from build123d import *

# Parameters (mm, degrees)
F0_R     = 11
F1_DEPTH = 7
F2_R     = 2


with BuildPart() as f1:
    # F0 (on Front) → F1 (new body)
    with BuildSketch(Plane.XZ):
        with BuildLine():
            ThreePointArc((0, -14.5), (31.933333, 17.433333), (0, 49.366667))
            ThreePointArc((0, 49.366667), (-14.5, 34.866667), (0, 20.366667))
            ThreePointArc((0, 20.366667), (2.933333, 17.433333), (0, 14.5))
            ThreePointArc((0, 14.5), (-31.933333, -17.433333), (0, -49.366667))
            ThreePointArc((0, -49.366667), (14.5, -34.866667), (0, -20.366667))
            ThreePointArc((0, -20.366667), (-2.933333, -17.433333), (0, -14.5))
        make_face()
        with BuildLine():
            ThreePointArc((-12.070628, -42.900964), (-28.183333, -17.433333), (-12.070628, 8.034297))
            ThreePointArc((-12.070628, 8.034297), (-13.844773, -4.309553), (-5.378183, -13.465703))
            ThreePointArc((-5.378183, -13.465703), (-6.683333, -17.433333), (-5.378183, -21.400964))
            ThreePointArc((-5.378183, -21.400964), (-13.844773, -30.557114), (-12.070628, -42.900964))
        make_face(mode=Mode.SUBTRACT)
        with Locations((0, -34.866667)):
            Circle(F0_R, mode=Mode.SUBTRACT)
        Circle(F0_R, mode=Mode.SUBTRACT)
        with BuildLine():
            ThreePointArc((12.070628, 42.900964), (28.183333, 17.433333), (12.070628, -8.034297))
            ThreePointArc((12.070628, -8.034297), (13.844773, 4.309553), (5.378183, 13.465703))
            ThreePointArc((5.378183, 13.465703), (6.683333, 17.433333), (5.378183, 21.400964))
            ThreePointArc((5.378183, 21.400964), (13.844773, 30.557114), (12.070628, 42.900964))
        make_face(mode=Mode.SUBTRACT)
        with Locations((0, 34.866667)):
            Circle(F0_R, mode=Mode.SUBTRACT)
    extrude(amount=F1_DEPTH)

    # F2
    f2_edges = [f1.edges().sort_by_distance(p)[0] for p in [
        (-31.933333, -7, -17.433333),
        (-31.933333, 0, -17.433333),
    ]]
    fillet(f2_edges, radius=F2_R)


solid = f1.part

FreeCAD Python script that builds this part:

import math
import FreeCAD as App
import Part
import Sketcher


def edges_at(feature, points):
    """Names of the edges that pass closest to the given points."""
    edges = feature.Shape.Edges
    near = lambda p: min(range(len(edges)), key=lambda i: edges[i].distToShape(Part.Vertex(*p))[0])
    return sorted({f"Edge{near(p) + 1}" for p in points})

doc = App.newDocument("Part")
params = doc.addObject("Spreadsheet::Sheet", "Params")
for row, (alias, value) in enumerate([
    ("sketch1_diameter", "22 mm"),
    ("sketch1_radius", "14.5 mm"),
    ("pad1_length", "7 mm"),
    ("fillet_radius", "2 mm"),
], start=1):
    params.set(f"A{row}", alias)
    params.set(f"B{row}", "=" + value)
    params.setAlias(f"B{row}", alias)

body = doc.addObject("PartDesign::Body", "Body")

# Sketch on XZ plane
sketch1 = doc.addObject("Sketcher::SketchObject", "Sketch")
body.addObject(sketch1)
sketch1.AttachmentSupport = (doc.XZ_Plane, [""])
sketch1.MapMode = "FlatFace"
sketch1.addGeometry([
    Part.ArcOfCircle(Part.Circle(App.Vector(0, 17.4, 0), App.Vector(0, 0, 1), 31.9), math.radians(-90), math.radians(90)),  # 0
    Part.ArcOfCircle(Part.Circle(App.Vector(0, 34.9, 0), App.Vector(0, 0, 1), 14.5), math.radians(90), math.radians(270)),  # 1
    Part.ArcOfCircle(Part.Circle(App.Vector(0, 17.4, 0), App.Vector(0, 0, 1), 2.9), math.radians(-90), math.radians(90)),  # 2
    Part.ArcOfCircle(Part.Circle(App.Vector(0, -17.4, 0), App.Vector(0, 0, 1), 31.9), math.radians(90), math.radians(270)),  # 3
    Part.ArcOfCircle(Part.Circle(App.Vector(0, -34.9, 0), App.Vector(0, 0, 1), 14.5), math.radians(-90), math.radians(90)),  # 4
    Part.ArcOfCircle(Part.Circle(App.Vector(0, -17.4, 0), App.Vector(0, 0, 1), 2.9), math.radians(90), math.radians(270)),  # 5
    Part.ArcOfCircle(Part.Circle(App.Vector(0, -34.9, 0), App.Vector(0, 0, 1), 14.5), math.radians(112), math.radians(214)),  # 6
    Part.ArcOfCircle(Part.Circle(App.Vector(0, -17.4, 0), App.Vector(0, 0, 1), 28.2), math.radians(115), math.radians(245)),  # 7
    Part.ArcOfCircle(Part.Circle(App.Vector(0, 0, 0), App.Vector(0, 0, 1), 14.5), math.radians(146), math.radians(248)),  # 8
    Part.ArcOfCircle(Part.Circle(App.Vector(0, -17.4, 0), App.Vector(0, 0, 1), 6.7), math.radians(144), math.radians(216)),  # 9
    Part.Circle(App.Vector(0, -34.9, 0), App.Vector(0, 0, 1), 11),  # 10
    Part.Circle(App.Vector(0, 0, 0), App.Vector(0, 0, 1), 11),  # 11
    Part.ArcOfCircle(Part.Circle(App.Vector(0, 34.9, 0), App.Vector(0, 0, 1), 14.5), math.radians(-68), math.radians(34)),  # 12
    Part.ArcOfCircle(Part.Circle(App.Vector(0, 17.4, 0), App.Vector(0, 0, 1), 28.2), math.radians(-65), math.radians(65)),  # 13
    Part.ArcOfCircle(Part.Circle(App.Vector(0, 0, 0), App.Vector(0, 0, 1), 14.5), math.radians(-34), math.radians(68)),  # 14
    Part.ArcOfCircle(Part.Circle(App.Vector(0, 17.4, 0), App.Vector(0, 0, 1), 6.7), math.radians(-36), math.radians(36)),  # 15
    Part.Circle(App.Vector(0, 34.9, 0), App.Vector(0, 0, 1), 11),  # 16
], False)
sketch1.addConstraint([
    Sketcher.Constraint("Tangent", 0, 2, 1, 1),
    Sketcher.Constraint("Tangent", 1, 2, 2, 2),
    Sketcher.Constraint("Tangent", 2, 1, 3, 1),
    Sketcher.Constraint("Tangent", 3, 2, 4, 1),
    Sketcher.Constraint("Tangent", 4, 2, 5, 2),
    Sketcher.Constraint("Tangent", 5, 1, 0, 1),
    Sketcher.Constraint("Coincident", 6, 2, 7, 2),
    Sketcher.Constraint("Coincident", 7, 1, 8, 1),
    Sketcher.Constraint("Coincident", 8, 2, 9, 1),
    Sketcher.Constraint("Coincident", 9, 2, 6, 1),
    Sketcher.Constraint("Coincident", 12, 2, 13, 2),
    Sketcher.Constraint("Coincident", 13, 1, 14, 1),
    Sketcher.Constraint("Coincident", 14, 2, 15, 1),
    Sketcher.Constraint("Coincident", 15, 2, 12, 1),
    Sketcher.Constraint("Coincident", 8, 3, -1, 1),
    Sketcher.Constraint("Coincident", 11, 3, -1, 1),
    Sketcher.Constraint("Coincident", 14, 3, -1, 1),
    Sketcher.Constraint("Coincident", 2, 3, 0, 3),
    Sketcher.Constraint("Coincident", 5, 3, 3, 3),
    Sketcher.Constraint("Coincident", 6, 3, 4, 3),
    Sketcher.Constraint("Coincident", 7, 3, 3, 3),
    Sketcher.Constraint("Coincident", 9, 3, 3, 3),
    Sketcher.Constraint("Coincident", 10, 3, 4, 3),
    Sketcher.Constraint("Coincident", 12, 3, 1, 3),
    Sketcher.Constraint("Coincident", 13, 3, 0, 3),
    Sketcher.Constraint("Coincident", 15, 3, 0, 3),
    Sketcher.Constraint("Coincident", 16, 3, 1, 3),
    Sketcher.Constraint("Equal", 0, 3),
    Sketcher.Constraint("Equal", 4, 6),
    Sketcher.Constraint("Equal", 6, 8),
    Sketcher.Constraint("Equal", 10, 11),
    Sketcher.Constraint("Equal", 8, 12),
    Sketcher.Constraint("Equal", 7, 13),
    Sketcher.Constraint("Equal", 12, 14),
    Sketcher.Constraint("Equal", 9, 15),
    Sketcher.Constraint("Equal", 11, 16),
    Sketcher.Constraint("Symmetric", 0, 3, 3, 3, -1, 1),
    Sketcher.Constraint("PointOnObject", 0, 3, -2),
    Sketcher.Constraint("PointOnObject", 1, 3, -2),
    Sketcher.Constraint("PointOnObject", 4, 3, -2),
    Sketcher.Constraint("Diameter", 10, 22.0),
    Sketcher.Constraint("Radius", 1, 14.5),
    Sketcher.Constraint("DistanceY", 3, 3, 1, 3, 52.3),
    Sketcher.Constraint("Radius", 7, 28.183333),
    Sketcher.Constraint("Radius", 9, 6.683335),
])
sketch1.setExpression("Constraints[40]", "Params.sketch1_diameter")
sketch1.setExpression("Constraints[41]", "Params.sketch1_radius")
pad1 = doc.addObject("PartDesign::Pad", "Pad")
body.addObject(pad1)
pad1.Profile = sketch1
pad1.setExpression("Length", "Params.pad1_length")
doc.recompute()

fillet = doc.addObject("PartDesign::Fillet", "Fillet")
body.addObject(fillet)
fillet.Base = (pad1, edges_at(pad1, [(-31.933, -7, -17.433), (-31.933, 0, -17.433)]))
fillet.setExpression("Radius", "Params.fillet_radius")

doc.recompute()
